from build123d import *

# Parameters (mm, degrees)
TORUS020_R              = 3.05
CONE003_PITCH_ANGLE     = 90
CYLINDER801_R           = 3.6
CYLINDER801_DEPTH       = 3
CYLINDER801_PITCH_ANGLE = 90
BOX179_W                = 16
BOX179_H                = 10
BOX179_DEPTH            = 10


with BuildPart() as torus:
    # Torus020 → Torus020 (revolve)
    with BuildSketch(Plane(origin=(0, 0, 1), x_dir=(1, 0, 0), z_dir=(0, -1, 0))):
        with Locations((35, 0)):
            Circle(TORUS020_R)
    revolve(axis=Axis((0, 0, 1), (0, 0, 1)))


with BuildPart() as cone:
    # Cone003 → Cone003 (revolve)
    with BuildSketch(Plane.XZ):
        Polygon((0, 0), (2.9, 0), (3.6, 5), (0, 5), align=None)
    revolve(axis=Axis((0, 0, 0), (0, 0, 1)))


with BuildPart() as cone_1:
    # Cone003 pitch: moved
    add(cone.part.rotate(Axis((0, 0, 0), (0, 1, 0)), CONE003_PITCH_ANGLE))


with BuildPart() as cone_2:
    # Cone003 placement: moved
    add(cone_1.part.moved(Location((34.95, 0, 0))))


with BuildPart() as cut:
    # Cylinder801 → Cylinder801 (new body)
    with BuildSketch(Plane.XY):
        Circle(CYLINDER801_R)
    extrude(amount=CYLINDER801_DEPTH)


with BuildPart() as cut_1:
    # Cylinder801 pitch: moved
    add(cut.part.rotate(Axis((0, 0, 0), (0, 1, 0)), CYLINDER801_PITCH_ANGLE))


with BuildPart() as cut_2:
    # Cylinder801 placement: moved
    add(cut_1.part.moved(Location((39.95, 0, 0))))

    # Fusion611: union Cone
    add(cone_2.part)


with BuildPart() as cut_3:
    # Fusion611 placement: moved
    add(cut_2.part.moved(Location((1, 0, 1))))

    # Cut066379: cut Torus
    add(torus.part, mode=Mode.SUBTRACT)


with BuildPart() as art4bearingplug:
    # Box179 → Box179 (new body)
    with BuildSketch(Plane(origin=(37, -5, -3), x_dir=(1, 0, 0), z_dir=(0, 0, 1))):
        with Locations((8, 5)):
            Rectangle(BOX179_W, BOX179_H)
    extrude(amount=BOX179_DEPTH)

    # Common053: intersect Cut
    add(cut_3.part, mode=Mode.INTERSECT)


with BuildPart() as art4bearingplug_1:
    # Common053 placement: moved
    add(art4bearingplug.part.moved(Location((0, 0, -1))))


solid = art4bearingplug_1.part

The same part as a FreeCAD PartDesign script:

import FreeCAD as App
import Part
import Sketcher

V = App.Vector
Q = App.Units.Quantity


def add_polygon(sketch, points):
    """Adds a closed chain of lines whose ends are joined by coincident constraints."""
    first, n = sketch.GeometryCount, len(points)
    for a, b in zip(points, points[1:] + points[:1]):
        sketch.addGeometry(Part.LineSegment(App.Vector(*a, 0), App.Vector(*b, 0)), False)
    for i in range(n):
        sketch.addConstraint(Sketcher.Constraint("Coincident", first + i, 2, first + (i + 1) % n, 1))

doc = App.newDocument("Part")
body = doc.addObject("PartDesign::Body", "Body")

# Sketch on XZ plane
sketch1 = body.newObject("Sketcher::SketchObject", "Sketch")
sketch1.AttachmentSupport = (doc.getObject("XZ_Plane"), [""])
sketch1.MapMode = "FlatFace"
sketch1.addGeometry(Part.Circle(V(35, 1, 0), V(0, 0, 1), 3.05), False)
sketch1.addConstraint([
    Sketcher.Constraint("Diameter", 0, Q("6.1 mm")),
    Sketcher.Constraint("DistanceX", -1, 1, 0, 3, Q("35 mm")),
    Sketcher.Constraint("DistanceY", -1, 1, 0, 3, Q("1 mm")),
])
revolution = body.newObject("PartDesign::Revolution", "Revolution")
revolution.Profile = sketch1
revolution.ReferenceAxis = (sketch1, ["V_Axis"])
revolution.Angle = 360
body2 = doc.addObject("PartDesign::Body", "Body001")

# Sketch on XZ plane
sketch2 = body2.newObject("Sketcher::SketchObject", "Sketch001")
sketch2.AttachmentSupport = (doc.getObject("XZ_Plane001"), [""])
sketch2.MapMode = "FlatFace"
add_polygon(sketch2, [(0, 0), (2.9, 0), (3.6, 5), (0, 5)])  # lines 0-3
sketch2.addConstraint([
    Sketcher.Constraint("Horizontal", 0),
    Sketcher.Constraint("Horizontal", 2),
    Sketcher.Constraint("Vertical", 3),
    Sketcher.Constraint("Coincident", 3, 2, -1, 1),
    Sketcher.Constraint("DistanceY", 3, 2, 3, 1, Q("5 mm")),
    Sketcher.Constraint("DistanceX", 0, 1, 0, 2, Q("2.9 mm")),
    Sketcher.Constraint("DistanceX", 2, 2, 2, 1, Q("3.6 mm")),
])
revolution2 = body2.newObject("PartDesign::Revolution", "Revolution001")
revolution2.Profile = sketch2
revolution2.ReferenceAxis = (sketch2, ["V_Axis"])
revolution2.Angle = 360
body3 = doc.addObject("PartDesign::Body", "Body002")
doc.recompute()

body2.Placement = App.Placement(V(0, 0, 0), App.Rotation(V(0, 1, 0), 90))
boolean = body3.newObject("PartDesign::Boolean", "Boolean")
boolean.Type = "Fuse"
boolean.addObjects([body2])
body4 = doc.addObject("PartDesign::Body", "Body003")
doc.recompute()

body3.Placement = App.Placement(V(34.95, 0, 0), App.Rotation(V(0, 0, 1), 0))
boolean2 = body4.newObject("PartDesign::Boolean", "Boolean001")
boolean2.Type = "Fuse"
boolean2.addObjects([body3])
body5 = doc.addObject("PartDesign::Body", "Body004")

# Sketch on XY plane
sketch3 = body5.newObject("Sketcher::SketchObject", "Sketch002")
sketch3.AttachmentSupport = (doc.getObject("XY_Plane004"), [""])
sketch3.MapMode = "FlatFace"
sketch3.addGeometry(Part.Circle(V(0, 0, 0), V(0, 0, 1), 3.6), False)
sketch3.addConstraint([
    Sketcher.Constraint("Coincident", 0, 3, -1, 1),
    Sketcher.Constraint("Diameter", 0, Q("7.2 mm")),
])
pad1 = body5.newObject("PartDesign::Pad", "Pad")
pad1.Profile = sketch3
pad1.Length = 3
body6 = doc.addObject("PartDesign::Body", "Body005")
doc.recompute()

body5.Placement = App.Placement(V(0, 0, 0), App.Rotation(V(0, 1, 0), 90))
boolean3 = body6.newObject("PartDesign::Boolean", "Boolean002")
boolean3.Type = "Fuse"
boolean3.addObjects([body5])
body7 = doc.addObject("PartDesign::Body", "Body006")
doc.recompute()

body6.Placement = App.Placement(V(39.95, 0, 0), App.Rotation(V(0, 0, 1), 0))
boolean4 = body7.newObject("PartDesign::Boolean", "Boolean003")
boolean4.Type = "Fuse"
boolean4.addObjects([body6])
doc.recompute()

boolean5 = body7.newObject("PartDesign::Boolean", "Boolean004")
boolean5.Type = "Fuse"
boolean5.addObjects([body4])
body8 = doc.addObject("PartDesign::Body", "Body007")
doc.recompute()

body7.Placement = App.Placement(V(1, 0, 1), App.Rotation(V(0, 0, 1), 0))
boolean6 = body8.newObject("PartDesign::Boolean", "Boolean005")
boolean6.Type = "Fuse"
boolean6.addObjects([body7])
doc.recompute()

boolean7 = body8.newObject("PartDesign::Boolean", "Boolean006")
boolean7.Type = "Cut"
boolean7.addObjects([body])
body9 = doc.addObject("PartDesign::Body", "Body008")

# Sketch on XY plane
sketch4 = body9.newObject("Sketcher::SketchObject", "Sketch003")
sketch4.AttachmentSupport = (doc.getObject("XY_Plane008"), [""])
sketch4.MapMode = "FlatFace"
sketch4.AttachmentOffset = App.Placement(V(0, 0, -3), App.Rotation())
add_polygon(sketch4, [(37, 5), (37, -5), (53, -5), (53, 5)])  # lines 0-3
sketch4.addConstraint([
    Sketcher.Constraint("Vertical", 0),
    Sketcher.Constraint("Horizontal", 1),
    Sketcher.Constraint("Vertical", 2),
    Sketcher.Constraint("Horizontal", 3),
    Sketcher.Constraint("DistanceX", 1, 1, 1, 2, Q("16 mm")),
    Sketcher.Constraint("DistanceY", 0, 2, 0, 1, Q("10 mm")),
    Sketcher.Constraint("DistanceX", -1, 1, 0, 2, Q("37 mm")),
    Sketcher.Constraint("DistanceY", 0, 2, -1, 1, Q("5 mm")),
])
pad2 = body9.newObject("PartDesign::Pad", "Pad001")
pad2.Profile = sketch4
pad2.Length = 10
doc.recompute()

boolean8 = body9.newObject("PartDesign::Boolean", "Boolean007")
boolean8.Type = "Common"
boolean8.addObjects([body8])
body10 = doc.addObject("PartDesign::Body", "Body009")
doc.recompute()

body9.Placement = App.Placement(V(0, 0, -1), App.Rotation(V(0, 0, 1), 0))
boolean9 = body10.newObject("PartDesign::Boolean", "Boolean008")
boolean9.Type = "Fuse"
boolean9.addObjects([body9])

doc.recompute()
